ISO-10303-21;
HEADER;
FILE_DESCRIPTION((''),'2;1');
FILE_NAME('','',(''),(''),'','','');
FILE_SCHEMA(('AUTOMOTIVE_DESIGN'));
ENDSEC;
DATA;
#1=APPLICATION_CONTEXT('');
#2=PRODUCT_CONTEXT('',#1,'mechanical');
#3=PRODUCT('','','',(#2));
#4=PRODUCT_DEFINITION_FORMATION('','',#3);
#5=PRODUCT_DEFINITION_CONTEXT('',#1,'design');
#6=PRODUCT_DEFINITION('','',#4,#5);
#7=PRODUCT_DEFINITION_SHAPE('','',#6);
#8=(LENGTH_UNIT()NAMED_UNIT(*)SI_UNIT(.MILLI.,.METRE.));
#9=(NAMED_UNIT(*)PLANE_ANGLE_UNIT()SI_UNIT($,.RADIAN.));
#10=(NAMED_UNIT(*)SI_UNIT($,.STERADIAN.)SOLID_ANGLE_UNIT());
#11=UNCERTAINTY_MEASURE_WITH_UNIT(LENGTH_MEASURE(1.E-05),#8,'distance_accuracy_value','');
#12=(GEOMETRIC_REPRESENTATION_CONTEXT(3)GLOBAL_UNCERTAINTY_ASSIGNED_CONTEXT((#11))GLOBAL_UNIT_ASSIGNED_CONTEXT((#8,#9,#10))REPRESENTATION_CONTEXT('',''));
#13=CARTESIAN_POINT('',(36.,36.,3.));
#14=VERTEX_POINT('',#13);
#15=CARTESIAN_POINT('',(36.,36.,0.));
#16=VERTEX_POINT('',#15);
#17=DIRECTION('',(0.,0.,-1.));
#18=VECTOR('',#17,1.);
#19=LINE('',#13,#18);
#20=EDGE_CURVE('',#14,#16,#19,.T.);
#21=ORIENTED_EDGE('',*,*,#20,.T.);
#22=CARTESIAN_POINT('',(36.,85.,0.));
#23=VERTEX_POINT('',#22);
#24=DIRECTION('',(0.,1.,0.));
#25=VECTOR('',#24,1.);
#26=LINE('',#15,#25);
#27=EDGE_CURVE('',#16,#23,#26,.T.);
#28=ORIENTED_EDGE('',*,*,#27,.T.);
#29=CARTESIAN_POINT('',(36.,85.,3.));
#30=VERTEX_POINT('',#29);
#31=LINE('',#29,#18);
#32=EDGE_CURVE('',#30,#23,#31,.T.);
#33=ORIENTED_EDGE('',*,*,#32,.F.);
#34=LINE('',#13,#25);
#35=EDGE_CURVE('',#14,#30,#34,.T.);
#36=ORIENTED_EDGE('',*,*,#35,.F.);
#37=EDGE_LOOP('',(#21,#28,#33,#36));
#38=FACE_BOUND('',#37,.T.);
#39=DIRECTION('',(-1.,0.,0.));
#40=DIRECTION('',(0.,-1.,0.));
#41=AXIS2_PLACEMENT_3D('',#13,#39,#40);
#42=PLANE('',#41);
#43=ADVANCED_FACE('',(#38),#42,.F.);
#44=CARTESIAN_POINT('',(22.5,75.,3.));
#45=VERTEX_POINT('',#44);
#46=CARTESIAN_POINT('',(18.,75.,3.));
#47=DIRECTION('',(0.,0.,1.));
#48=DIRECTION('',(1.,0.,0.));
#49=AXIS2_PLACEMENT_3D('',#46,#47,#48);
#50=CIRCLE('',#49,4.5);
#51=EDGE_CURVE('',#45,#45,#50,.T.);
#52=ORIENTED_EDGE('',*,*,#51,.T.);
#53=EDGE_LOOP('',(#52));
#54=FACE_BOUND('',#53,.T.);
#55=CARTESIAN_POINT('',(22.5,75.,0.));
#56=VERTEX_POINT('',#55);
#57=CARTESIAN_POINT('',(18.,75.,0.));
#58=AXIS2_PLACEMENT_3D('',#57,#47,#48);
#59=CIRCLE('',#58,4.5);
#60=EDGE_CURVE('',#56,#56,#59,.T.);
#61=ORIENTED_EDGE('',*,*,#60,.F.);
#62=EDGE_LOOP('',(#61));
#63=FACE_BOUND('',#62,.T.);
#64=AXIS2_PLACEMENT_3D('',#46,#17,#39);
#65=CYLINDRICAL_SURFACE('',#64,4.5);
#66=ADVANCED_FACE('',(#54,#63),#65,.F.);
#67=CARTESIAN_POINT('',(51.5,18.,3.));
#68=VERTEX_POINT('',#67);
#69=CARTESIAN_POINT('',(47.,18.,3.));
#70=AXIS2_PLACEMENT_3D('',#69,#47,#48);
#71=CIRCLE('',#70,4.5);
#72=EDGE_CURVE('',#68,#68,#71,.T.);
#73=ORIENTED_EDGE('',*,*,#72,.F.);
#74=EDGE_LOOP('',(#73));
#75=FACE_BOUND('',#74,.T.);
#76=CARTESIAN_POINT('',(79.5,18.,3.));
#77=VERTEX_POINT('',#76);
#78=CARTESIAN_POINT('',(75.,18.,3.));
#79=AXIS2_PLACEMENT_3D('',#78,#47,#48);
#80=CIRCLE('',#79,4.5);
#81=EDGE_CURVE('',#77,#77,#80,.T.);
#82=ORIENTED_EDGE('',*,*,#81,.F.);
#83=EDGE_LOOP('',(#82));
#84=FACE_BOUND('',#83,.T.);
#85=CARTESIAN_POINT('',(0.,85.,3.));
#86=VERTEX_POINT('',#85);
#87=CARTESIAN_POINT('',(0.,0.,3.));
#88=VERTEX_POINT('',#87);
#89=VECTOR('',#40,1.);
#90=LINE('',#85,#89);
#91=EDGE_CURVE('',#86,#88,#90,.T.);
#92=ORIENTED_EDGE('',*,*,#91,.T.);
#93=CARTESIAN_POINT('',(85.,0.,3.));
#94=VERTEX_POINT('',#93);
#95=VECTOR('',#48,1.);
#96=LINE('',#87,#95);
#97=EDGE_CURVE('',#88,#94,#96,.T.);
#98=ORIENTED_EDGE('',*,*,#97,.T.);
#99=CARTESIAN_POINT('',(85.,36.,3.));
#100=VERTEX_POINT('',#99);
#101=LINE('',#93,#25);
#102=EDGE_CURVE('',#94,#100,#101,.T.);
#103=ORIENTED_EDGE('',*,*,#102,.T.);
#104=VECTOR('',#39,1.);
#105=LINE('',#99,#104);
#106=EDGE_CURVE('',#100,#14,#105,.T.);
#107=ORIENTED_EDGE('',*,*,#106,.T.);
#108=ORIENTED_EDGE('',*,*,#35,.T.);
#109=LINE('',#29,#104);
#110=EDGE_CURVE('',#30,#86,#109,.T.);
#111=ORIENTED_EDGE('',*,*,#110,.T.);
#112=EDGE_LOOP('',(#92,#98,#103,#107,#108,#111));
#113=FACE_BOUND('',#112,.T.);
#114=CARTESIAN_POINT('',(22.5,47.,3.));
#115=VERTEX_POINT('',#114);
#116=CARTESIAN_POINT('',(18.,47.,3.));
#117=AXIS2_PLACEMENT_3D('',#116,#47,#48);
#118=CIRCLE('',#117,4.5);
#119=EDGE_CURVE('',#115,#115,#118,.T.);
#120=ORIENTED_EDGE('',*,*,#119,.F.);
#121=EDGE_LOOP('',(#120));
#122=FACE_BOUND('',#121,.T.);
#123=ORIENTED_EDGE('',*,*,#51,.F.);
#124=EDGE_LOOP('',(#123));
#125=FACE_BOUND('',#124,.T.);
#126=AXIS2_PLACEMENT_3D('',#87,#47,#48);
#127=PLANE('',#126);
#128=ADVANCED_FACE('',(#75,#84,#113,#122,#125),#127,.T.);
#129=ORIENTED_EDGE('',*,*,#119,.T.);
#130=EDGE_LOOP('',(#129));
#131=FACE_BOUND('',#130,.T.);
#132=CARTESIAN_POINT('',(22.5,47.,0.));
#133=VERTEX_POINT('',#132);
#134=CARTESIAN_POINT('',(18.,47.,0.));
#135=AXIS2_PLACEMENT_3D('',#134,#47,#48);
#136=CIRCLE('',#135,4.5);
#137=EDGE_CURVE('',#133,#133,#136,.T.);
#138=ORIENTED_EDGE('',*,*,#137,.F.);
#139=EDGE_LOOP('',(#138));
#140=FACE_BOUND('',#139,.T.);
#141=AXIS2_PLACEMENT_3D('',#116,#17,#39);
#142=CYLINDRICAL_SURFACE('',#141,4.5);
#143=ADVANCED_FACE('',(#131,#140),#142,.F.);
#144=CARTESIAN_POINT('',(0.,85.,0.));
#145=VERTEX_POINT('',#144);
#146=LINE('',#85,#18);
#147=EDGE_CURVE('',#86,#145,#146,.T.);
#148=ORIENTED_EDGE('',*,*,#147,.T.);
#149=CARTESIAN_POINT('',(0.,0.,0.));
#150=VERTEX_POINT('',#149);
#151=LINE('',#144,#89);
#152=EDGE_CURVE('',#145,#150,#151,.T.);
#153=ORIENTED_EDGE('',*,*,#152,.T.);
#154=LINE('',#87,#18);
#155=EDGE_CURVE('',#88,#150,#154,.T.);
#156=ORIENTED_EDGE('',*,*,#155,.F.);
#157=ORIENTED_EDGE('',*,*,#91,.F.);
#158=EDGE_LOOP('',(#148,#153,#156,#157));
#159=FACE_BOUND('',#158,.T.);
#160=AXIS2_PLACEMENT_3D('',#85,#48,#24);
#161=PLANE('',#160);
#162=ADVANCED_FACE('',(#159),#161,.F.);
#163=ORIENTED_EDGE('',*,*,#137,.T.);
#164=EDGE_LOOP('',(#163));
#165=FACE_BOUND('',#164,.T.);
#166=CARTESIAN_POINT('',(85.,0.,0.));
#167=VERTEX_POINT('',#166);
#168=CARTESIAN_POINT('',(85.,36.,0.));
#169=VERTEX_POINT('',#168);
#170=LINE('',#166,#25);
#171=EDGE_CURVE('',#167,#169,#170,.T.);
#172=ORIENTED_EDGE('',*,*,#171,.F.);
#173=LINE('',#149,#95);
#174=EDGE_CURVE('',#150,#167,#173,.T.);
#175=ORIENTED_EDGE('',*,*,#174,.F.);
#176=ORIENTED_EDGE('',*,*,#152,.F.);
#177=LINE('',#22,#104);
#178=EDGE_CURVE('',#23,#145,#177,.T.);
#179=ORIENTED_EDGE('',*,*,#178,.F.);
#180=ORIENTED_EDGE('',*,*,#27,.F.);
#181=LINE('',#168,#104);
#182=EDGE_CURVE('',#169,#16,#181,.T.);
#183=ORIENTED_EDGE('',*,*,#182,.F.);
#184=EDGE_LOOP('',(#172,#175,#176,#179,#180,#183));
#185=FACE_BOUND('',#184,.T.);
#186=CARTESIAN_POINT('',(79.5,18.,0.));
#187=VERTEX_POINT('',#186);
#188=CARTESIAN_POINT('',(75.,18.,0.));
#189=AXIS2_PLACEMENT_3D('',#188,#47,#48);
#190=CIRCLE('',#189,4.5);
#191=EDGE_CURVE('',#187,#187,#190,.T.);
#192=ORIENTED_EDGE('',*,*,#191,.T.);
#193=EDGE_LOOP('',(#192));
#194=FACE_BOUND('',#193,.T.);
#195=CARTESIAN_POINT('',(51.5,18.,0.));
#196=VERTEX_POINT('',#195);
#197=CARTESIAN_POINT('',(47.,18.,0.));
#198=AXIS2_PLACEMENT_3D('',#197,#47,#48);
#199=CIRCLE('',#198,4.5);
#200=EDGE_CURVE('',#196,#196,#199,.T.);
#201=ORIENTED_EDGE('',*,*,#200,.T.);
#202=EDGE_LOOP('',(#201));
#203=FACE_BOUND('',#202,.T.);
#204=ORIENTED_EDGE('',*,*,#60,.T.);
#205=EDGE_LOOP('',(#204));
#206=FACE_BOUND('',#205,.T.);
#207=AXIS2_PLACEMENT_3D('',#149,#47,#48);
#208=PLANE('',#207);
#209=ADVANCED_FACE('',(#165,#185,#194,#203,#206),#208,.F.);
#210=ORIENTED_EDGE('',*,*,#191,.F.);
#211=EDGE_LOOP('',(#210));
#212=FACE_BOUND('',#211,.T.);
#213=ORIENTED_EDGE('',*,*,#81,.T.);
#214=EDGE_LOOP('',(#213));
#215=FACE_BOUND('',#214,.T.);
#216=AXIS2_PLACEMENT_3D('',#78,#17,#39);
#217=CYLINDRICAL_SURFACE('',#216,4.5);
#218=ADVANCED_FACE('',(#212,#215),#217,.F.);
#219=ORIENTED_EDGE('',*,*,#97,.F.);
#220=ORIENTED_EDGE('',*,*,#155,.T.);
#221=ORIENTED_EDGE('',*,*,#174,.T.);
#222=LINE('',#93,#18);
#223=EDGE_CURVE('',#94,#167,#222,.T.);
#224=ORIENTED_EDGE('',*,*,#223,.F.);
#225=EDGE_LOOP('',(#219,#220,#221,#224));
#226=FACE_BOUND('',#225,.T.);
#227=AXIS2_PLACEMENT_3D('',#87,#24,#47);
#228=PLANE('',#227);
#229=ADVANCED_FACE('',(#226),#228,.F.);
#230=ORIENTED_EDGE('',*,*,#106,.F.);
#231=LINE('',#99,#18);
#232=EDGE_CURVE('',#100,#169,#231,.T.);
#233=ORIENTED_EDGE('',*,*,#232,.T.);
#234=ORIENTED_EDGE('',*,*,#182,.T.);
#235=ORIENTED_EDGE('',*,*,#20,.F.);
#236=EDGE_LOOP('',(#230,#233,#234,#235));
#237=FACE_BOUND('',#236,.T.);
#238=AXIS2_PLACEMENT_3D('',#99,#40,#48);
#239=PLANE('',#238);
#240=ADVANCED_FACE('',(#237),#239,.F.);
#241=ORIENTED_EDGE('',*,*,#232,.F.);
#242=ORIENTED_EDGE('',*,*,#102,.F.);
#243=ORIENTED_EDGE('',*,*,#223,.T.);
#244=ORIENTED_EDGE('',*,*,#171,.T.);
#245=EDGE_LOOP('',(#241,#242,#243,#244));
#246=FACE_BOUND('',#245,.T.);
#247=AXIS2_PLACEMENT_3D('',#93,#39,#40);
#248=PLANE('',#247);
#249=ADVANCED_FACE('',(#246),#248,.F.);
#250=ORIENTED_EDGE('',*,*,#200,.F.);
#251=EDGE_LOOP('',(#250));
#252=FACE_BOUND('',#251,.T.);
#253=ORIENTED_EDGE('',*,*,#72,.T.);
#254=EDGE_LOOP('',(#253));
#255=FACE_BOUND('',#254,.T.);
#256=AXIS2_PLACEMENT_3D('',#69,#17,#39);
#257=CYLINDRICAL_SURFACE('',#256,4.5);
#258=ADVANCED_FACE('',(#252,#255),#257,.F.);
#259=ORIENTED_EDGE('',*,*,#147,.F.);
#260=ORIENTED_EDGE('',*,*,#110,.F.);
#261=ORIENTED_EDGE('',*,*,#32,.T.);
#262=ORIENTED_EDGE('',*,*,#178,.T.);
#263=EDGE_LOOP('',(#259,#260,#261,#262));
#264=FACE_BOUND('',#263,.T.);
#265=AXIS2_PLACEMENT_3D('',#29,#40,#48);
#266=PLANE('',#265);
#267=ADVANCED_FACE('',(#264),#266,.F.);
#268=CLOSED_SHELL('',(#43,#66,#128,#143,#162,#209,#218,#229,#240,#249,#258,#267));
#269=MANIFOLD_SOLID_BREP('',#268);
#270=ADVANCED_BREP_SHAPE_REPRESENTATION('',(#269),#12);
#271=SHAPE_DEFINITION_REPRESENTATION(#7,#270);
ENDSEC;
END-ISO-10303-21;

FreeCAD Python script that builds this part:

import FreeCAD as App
import Part
import Sketcher

doc = App.newDocument("Part")
params = doc.addObject("Spreadsheet::Sheet", "Params")
for row, (alias, value) in enumerate([
    ("sketch1_diameter", "9 mm"),
    ("sketch1_width", "85 mm"),
    ("sketch1_width2", "49 mm"),
    ("pad1_length", "3 mm"),
], start=1):
    params.set(f"A{row}", alias)
    params.set(f"B{row}", "=" + value)
    params.setAlias(f"B{row}", alias)

body = doc.addObject("PartDesign::Body", "Body")

sketch1 = body.newObject("Sketcher::SketchObject", "Sketch")
sketch1.AttachmentSupport = (doc.getObject("XY_Plane"), [""])
sketch1.MapMode = "FlatFace"
sketch1.addGeometry([
    Part.LineSegment(App.Vector(0, 85, 0), App.Vector(0, 0, 0)),
    Part.LineSegment(App.Vector(0, 0, 0), App.Vector(85, 0, 0)),
    Part.LineSegment(App.Vector(85, 0, 0), App.Vector(85, 36, 0)),
    Part.LineSegment(App.Vector(85, 36, 0), App.Vector(36, 36, 0)),
    Part.LineSegment(App.Vector(36, 36, 0), App.Vector(36, 85, 0)),
    Part.LineSegment(App.Vector(36, 85, 0), App.Vector(0, 85, 0)),
    Part.Circle(App.Vector(47, 18, 0), App.Vector(0, 0, 1), 4.5),
    Part.Circle(App.Vector(75, 18, 0), App.Vector(0, 0, 1), 4.5),
    Part.Circle(App.Vector(18, 47, 0), App.Vector(0, 0, 1), 4.5),
    Part.Circle(App.Vector(18, 75, 0), App.Vector(0, 0, 1), 4.5),
], False)
sketch1.addConstraint([
    Sketcher.Constraint("Coincident", 0, 2, 1, 1),
    Sketcher.Constraint("Coincident", 1, 2, 2, 1),
    Sketcher.Constraint("Coincident", 2, 2, 3, 1),
    Sketcher.Constraint("Coincident", 3, 2, 4, 1),
    Sketcher.Constraint("Coincident", 4, 2, 5, 1),
    Sketcher.Constraint("Coincident", 5, 2, 0, 1),
    Sketcher.Constraint("Vertical", 0),
    Sketcher.Constraint("Horizontal", 1),
    Sketcher.Constraint("Vertical", 2),
    Sketcher.Constraint("Horizontal", 3),
    Sketcher.Constraint("Vertical", 4),
    Sketcher.Constraint("Horizontal", 5),
    Sketcher.Constraint("Coincident", 0, 2, -1, 1),
    Sketcher.Constraint("Equal", 6, 7),
    Sketcher.Constraint("Equal", 7, 8),
    Sketcher.Constraint("Equal", 8, 9),
    Sketcher.Constraint("Horizontal", 6, 3, 7, 3),
    Sketcher.Constraint("Vertical", 8, 3, 9, 3),
    Sketcher.Constraint("Equal", 1, 0),
    Sketcher.Constraint("Equal", 5, 2),
    Sketcher.Constraint("Diameter", 6, 9.0),
    Sketcher.Constraint("DistanceX", 1, 1, 1, 2, 85.0),
    Sketcher.Constraint("DistanceX", 3, 2, 3, 1, 49.0),
    Sketcher.Constraint("DistanceX", -1, 1, 6, 3, 47.0),
    Sketcher.Constraint("DistanceY", -1, 1, 6, 3, 18.0),
    Sketcher.Constraint("DistanceX", -1, 1, 7, 3, 75.0),
    Sketcher.Constraint("DistanceX", -1, 1, 8, 3, 18.0),
    Sketcher.Constraint("DistanceY", -1, 1, 8, 3, 47.0),
    Sketcher.Constraint("DistanceY", -1, 1, 9, 3, 75.0),
])
sketch1.setExpression("Constraints[20]", "Params.sketch1_diameter")
sketch1.setExpression("Constraints[21]", "Params.sketch1_width")
sketch1.setExpression("Constraints[22]", "Params.sketch1_width2")
pad1 = body.newObject("PartDesign::Pad", "Pad")
pad1.Profile = sketch1
pad1.setExpression("Length", "Params.pad1_length")

doc.recompute()
